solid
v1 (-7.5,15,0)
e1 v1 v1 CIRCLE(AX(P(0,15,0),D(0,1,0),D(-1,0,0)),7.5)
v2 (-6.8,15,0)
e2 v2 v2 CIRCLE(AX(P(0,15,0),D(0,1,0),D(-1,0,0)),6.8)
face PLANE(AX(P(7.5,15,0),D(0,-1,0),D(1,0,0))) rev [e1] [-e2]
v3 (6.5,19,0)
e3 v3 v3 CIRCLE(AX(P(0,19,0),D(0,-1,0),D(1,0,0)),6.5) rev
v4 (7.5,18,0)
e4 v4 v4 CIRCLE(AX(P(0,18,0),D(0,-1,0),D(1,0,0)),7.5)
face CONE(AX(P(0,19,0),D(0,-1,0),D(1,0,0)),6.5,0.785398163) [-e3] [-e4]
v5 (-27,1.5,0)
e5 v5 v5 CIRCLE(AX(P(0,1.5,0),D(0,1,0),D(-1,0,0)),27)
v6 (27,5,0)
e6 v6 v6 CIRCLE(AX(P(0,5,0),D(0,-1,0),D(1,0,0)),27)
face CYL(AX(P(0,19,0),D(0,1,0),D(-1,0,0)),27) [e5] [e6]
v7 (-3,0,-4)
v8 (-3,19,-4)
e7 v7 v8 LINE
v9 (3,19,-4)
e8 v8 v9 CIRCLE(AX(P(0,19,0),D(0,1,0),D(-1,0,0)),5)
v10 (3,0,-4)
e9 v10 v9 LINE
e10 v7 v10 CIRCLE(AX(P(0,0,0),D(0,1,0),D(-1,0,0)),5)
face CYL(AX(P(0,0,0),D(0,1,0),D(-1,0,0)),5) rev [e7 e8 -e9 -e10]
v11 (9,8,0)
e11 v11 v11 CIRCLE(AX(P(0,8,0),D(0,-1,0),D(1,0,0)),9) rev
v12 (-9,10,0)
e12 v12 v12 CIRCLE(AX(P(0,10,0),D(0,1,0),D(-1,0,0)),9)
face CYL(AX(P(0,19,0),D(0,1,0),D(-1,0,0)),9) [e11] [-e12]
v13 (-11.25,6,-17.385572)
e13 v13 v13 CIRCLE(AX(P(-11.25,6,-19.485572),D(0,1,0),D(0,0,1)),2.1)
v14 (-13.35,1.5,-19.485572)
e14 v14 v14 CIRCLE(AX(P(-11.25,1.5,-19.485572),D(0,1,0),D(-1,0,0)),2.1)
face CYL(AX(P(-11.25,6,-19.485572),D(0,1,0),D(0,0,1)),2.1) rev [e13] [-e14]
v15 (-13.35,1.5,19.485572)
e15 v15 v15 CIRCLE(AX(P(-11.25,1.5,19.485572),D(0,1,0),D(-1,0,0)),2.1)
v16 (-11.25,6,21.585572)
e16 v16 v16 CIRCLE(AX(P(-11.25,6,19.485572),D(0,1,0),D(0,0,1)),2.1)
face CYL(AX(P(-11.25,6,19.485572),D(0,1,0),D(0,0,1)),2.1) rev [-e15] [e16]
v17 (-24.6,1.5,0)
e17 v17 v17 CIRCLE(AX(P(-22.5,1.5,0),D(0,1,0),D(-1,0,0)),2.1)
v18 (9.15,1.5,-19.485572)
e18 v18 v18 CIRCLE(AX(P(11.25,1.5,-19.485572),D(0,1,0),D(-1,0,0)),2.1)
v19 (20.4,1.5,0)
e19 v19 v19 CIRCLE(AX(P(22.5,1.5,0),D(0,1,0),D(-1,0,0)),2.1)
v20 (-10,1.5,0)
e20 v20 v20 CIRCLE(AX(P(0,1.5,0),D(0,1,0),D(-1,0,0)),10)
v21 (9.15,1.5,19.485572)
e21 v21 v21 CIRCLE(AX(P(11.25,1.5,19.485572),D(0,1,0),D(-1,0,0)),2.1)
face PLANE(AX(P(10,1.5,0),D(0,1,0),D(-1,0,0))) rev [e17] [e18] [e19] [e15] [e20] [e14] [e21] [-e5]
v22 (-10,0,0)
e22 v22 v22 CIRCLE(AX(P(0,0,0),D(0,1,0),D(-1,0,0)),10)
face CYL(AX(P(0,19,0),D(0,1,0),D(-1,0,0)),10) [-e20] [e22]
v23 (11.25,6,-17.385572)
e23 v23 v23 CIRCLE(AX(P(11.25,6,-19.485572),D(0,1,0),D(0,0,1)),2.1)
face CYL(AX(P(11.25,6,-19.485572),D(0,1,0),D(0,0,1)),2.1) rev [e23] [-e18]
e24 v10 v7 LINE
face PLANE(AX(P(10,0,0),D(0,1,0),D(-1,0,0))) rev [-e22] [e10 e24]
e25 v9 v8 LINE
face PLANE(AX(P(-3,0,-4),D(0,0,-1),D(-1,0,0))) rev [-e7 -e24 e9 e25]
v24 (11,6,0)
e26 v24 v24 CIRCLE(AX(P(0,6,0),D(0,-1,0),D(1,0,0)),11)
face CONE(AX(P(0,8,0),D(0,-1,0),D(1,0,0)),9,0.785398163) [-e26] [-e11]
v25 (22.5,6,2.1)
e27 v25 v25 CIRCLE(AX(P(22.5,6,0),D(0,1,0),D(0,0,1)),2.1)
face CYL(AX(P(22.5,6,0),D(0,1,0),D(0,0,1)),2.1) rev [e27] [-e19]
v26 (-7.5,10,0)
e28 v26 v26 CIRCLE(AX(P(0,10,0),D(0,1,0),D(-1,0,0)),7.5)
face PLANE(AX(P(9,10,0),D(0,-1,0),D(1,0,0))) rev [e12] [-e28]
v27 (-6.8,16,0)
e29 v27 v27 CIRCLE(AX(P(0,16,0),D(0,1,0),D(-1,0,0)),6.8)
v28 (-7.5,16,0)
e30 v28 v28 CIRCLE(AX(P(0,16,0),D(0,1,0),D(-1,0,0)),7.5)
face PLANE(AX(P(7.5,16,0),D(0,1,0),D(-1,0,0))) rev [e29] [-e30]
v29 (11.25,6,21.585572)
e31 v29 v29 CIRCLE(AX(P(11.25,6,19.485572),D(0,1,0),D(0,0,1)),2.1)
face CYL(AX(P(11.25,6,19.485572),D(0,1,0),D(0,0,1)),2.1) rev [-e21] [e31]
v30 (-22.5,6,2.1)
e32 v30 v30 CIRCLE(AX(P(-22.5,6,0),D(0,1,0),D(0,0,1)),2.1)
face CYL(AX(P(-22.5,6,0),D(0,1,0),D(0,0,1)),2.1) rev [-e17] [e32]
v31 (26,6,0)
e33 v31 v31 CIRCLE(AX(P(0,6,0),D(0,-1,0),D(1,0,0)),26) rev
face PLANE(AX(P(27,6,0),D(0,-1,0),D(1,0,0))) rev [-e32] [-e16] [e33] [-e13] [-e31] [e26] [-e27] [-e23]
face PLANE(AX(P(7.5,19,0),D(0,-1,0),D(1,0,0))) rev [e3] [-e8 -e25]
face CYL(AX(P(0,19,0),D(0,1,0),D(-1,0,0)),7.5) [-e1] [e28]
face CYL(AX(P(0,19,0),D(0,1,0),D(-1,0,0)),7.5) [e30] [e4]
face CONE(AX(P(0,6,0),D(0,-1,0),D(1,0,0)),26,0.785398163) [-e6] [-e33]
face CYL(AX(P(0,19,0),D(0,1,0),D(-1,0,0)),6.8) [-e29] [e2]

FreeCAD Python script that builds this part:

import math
import FreeCAD as App
import Part
import Sketcher

V = App.Vector
Q = App.Units.Quantity


def edges_at(feature, points):
    """Names of the edges that pass closest to the given points."""
    edges = feature.Shape.Edges
    near = lambda p: min(range(len(edges)), key=lambda i: edges[i].distToShape(Part.Vertex(*p))[0])
    return sorted({f"Edge{near(p) + 1}" for p in points})

doc = App.newDocument("Part")
body = doc.addObject("PartDesign::Body", "Body")

# Sketch on XY plane
sketch1 = body.newObject("Sketcher::SketchObject", "Sketch")
sketch1.AttachmentSupport = (doc.getObject("XY_Plane"), [""])
sketch1.MapMode = "FlatFace"
sketch1.addGeometry(Part.LineSegment(V(0, 19, 0), V(0, 0, 0)), False)
sketch1.addGeometry(Part.LineSegment(V(0, 0, 0), V(10, 0, 0)), False)
sketch1.addGeometry(Part.LineSegment(V(10, 0, 0), V(10, 1.5, 0)), False)
sketch1.addGeometry(Part.LineSegment(V(10, 1.5, 0), V(27, 1.5, 0)), False)
sketch1.addGeometry(Part.LineSegment(V(27, 1.5, 0), V(27, 6, 0)), False)
sketch1.addGeometry(Part.LineSegment(V(27, 6, 0), V(9, 6, 0)), False)
sketch1.addGeometry(Part.LineSegment(V(9, 6, 0), V(9, 10, 0)), False)
sketch1.addGeometry(Part.LineSegment(V(9, 10, 0), V(7.5, 10, 0)), False)
sketch1.addGeometry(Part.LineSegment(V(7.5, 10, 0), V(7.5, 15, 0)), False)
sketch1.addGeometry(Part.LineSegment(V(7.5, 15, 0), V(6.8, 15, 0)), False)
sketch1.addGeometry(Part.LineSegment(V(6.8, 15, 0), V(6.8, 16, 0)), False)
sketch1.addGeometry(Part.LineSegment(V(6.8, 16, 0), V(7.5, 16, 0)), False)
sketch1.addGeometry(Part.LineSegment(V(7.5, 16, 0), V(7.5, 19, 0)), False)
sketch1.addGeometry(Part.LineSegment(V(7.5, 19, 0), V(0, 19, 0)), False)
sketch1.addConstraint(Sketcher.Constraint("Coincident", 0, 2, 1, 1))
sketch1.addConstraint(Sketcher.Constraint("Coincident", 1, 2, 2, 1))
sketch1.addConstraint(Sketcher.Constraint("Coincident", 2, 2, 3, 1))
sketch1.addConstraint(Sketcher.Constraint("Coincident", 3, 2, 4, 1))
sketch1.addConstraint(Sketcher.Constraint("Coincident", 4, 2, 5, 1))
sketch1.addConstraint(Sketcher.Constraint("Coincident", 5, 2, 6, 1))
sketch1.addConstraint(Sketcher.Constraint("Coincident", 6, 2, 7, 1))
sketch1.addConstraint(Sketcher.Constraint("Coincident", 7, 2, 8, 1))
sketch1.addConstraint(Sketcher.Constraint("Coincident", 8, 2, 9, 1))
sketch1.addConstraint(Sketcher.Constraint("Coincident", 9, 2, 10, 1))
sketch1.addConstraint(Sketcher.Constraint("Coincident", 10, 2, 11, 1))
sketch1.addConstraint(Sketcher.Constraint("Coincident", 11, 2, 12, 1))
sketch1.addConstraint(Sketcher.Constraint("Coincident", 12, 2, 13, 1))
sketch1.addConstraint(Sketcher.Constraint("Coincident", 13, 2, 0, 1))
sketch1.addConstraint(Sketcher.Constraint("Vertical", 0))
sketch1.addConstraint(Sketcher.Constraint("Horizontal", 1))
sketch1.addConstraint(Sketcher.Constraint("Vertical", 2))
sketch1.addConstraint(Sketcher.Constraint("Horizontal", 3))
sketch1.addConstraint(Sketcher.Constraint("Vertical", 4))
sketch1.addConstraint(Sketcher.Constraint("Horizontal", 5))
sketch1.addConstraint(Sketcher.Constraint("Vertical", 6))
sketch1.addConstraint(Sketcher.Constraint("Horizontal", 7))
sketch1.addConstraint(Sketcher.Constraint("Vertical", 8))
sketch1.addConstraint(Sketcher.Constraint("Horizontal", 9))
sketch1.addConstraint(Sketcher.Constraint("Vertical", 10))
sketch1.addConstraint(Sketcher.Constraint("Horizontal", 11))
sketch1.addConstraint(Sketcher.Constraint("Vertical", 12))
sketch1.addConstraint(Sketcher.Constraint("Horizontal", 13))
sketch1.addConstraint(Sketcher.Constraint("Coincident", 0, 2, -1, 1))
sketch1.addConstraint(Sketcher.Constraint("Vertical", 8, 2, 11, 2))
sketch1.addConstraint(Sketcher.Constraint("Equal", 7, 2))
sketch1.addConstraint(Sketcher.Constraint("DistanceX", 1, 1, 1, 2, Q("10 mm")))
sketch1.addConstraint(Sketcher.Constraint("DistanceX", 3, 1, 3, 2, Q("17 mm")))
sketch1.addConstraint(Sketcher.Constraint("DistanceX", 5, 2, 5, 1, Q("18 mm")))
sketch1.addConstraint(Sketcher.Constraint("DistanceY", 0, 2, 0, 1, Q("19 mm")))
sketch1.addConstraint(Sketcher.Constraint("DistanceY", 6, 1, 6, 2, Q("4 mm")))
sketch1.addConstraint(Sketcher.Constraint("DistanceY", 8, 1, 8, 2, Q("5 mm")))
sketch1.addConstraint(Sketcher.Constraint("DistanceY", 10, 1, 10, 2, Q("1 mm")))
sketch1.addConstraint(Sketcher.Constraint("DistanceY", 12, 1, 12, 2, Q("3 mm")))
sketch1.addConstraint(Sketcher.Constraint("DistanceX", 7, 2, 7, 1, Q("1.5 mm")))
sketch1.addConstraint(Sketcher.Constraint("DistanceX", 9, 2, 9, 1, Q("0.7 mm")))
revolution = body.newObject("PartDesign::Revolution", "Revolution")
revolution.Profile = sketch1
revolution.ReferenceAxis = (sketch1, ["V_Axis"])
revolution.Angle = 360

# Sketch on XZ plane
sketch2 = body.newObject("Sketcher::SketchObject", "Sketch001")
sketch2.AttachmentSupport = (doc.getObject("XZ_Plane"), [""])
sketch2.MapMode = "FlatFace"
sketch2.AttachmentOffset = App.Placement(V(0, 0, -19), App.Rotation())
sketch2.addGeometry(Part.LineSegment(V(3, -4, 0), V(-3, -4, 0)), False)
sketch2.addGeometry(Part.ArcOfCircle(Part.Circle(V(0, 0, 0), V(0, 0, 1), 5), math.radians(-53.130102), math.radians(233.130102)), False)
sketch2.addConstraint(Sketcher.Constraint("Coincident", 0, 1, 1, 1))
sketch2.addConstraint(Sketcher.Constraint("Coincident", 1, 2, 0, 2))
sketch2.addConstraint(Sketcher.Constraint("Horizontal", 0))
sketch2.addConstraint(Sketcher.Constraint("Coincident", 1, 3, -1, 1))
sketch2.addConstraint(Sketcher.Constraint("Radius", 1, Q("5 mm")))
sketch2.addConstraint(Sketcher.Constraint("DistanceX", 0, 2, 0, 1, Q("6 mm")))
pocket1 = body.newObject("PartDesign::Pocket", "Pocket")
pocket1.Profile = sketch2
pocket1.Type = "ThroughAll"
pocket1.Reversed = True

# Sketch on XZ plane
sketch3 = body.newObject("Sketcher::SketchObject", "Sketch002")
sketch3.AttachmentSupport = (doc.getObject("XZ_Plane"), [""])
sketch3.MapMode = "FlatFace"
sketch3.AttachmentOffset = App.Placement(V(0, 0, -6), App.Rotation())
sketch3.addGeometry(Part.Circle(V(-11.25, -19.485572, 0), V(0, 0, 1), 2.1), False)
sketch3.addGeometry(Part.Circle(V(11.25, -19.485572, 0), V(0, 0, 1), 2.1), False)
sketch3.addGeometry(Part.Circle(V(22.5, 0, 0), V(0, 0, 1), 2.1), False)
sketch3.addGeometry(Part.Circle(V(11.25, 19.485572, 0), V(0, 0, 1), 2.1), False)
sketch3.addGeometry(Part.Circle(V(-11.25, 19.485572, 0), V(0, 0, 1), 2.1), False)
sketch3.addGeometry(Part.Circle(V(-22.5, 0, 0), V(0, 0, 1), 2.1), False)
sketch3.addConstraint(Sketcher.Constraint("Equal", 0, 1))
sketch3.addConstraint(Sketcher.Constraint("Equal", 1, 2))
sketch3.addConstraint(Sketcher.Constraint("Equal", 2, 3))
sketch3.addConstraint(Sketcher.Constraint("Equal", 3, 4))
sketch3.addConstraint(Sketcher.Constraint("Equal", 4, 5))
sketch3.addConstraint(Sketcher.Constraint("Symmetric", 0, 3, 3, 3, -1, 1))
sketch3.addConstraint(Sketcher.Constraint("Symmetric", 1, 3, 4, 3, -1, 1))
sketch3.addConstraint(Sketcher.Constraint("Symmetric", 2, 3, 5, 3, -1, 1))
sketch3.addConstraint(Sketcher.Constraint("Symmetric", 0, 3, 1, 3, -2))
sketch3.addConstraint(Sketcher.Constraint("PointOnObject", 2, 3, -1))
sketch3.addConstraint(Sketcher.Constraint("Diameter", 0, Q("4.2 mm")))
sketch3.addConstraint(Sketcher.Constraint("DistanceX", 5, 3, 2, 3, Q("45 mm")))
sketch3.addConstraint(Sketcher.Constraint("DistanceX", 0, 3, 1, 3, Q("22.5 mm")))
sketch3.addConstraint(Sketcher.Constraint("DistanceY", 0, 3, -1, 1, Q("19.485572 mm")))
doc.recompute()
hole = body.newObject("PartDesign::Hole", "Hole")
hole.Profile = sketch3
hole.ThreadType = "None"
hole.Diameter = 4.2
hole.DepthType = "ThroughAll"
hole.Reversed = True
doc.recompute()

chamfer = body.newObject("PartDesign::Chamfer", "Chamfer")
chamfer.Base = (hole, edges_at(hole, [(9, 6, 0)]))
chamfer.Size = 2
doc.recompute()

chamfer2 = body.newObject("PartDesign::Chamfer", "Chamfer001")
chamfer2.Base = (chamfer, edges_at(chamfer, [(27, 6, 0), (7.5, 19, 0)]))
chamfer2.Size = 1

doc.recompute()
